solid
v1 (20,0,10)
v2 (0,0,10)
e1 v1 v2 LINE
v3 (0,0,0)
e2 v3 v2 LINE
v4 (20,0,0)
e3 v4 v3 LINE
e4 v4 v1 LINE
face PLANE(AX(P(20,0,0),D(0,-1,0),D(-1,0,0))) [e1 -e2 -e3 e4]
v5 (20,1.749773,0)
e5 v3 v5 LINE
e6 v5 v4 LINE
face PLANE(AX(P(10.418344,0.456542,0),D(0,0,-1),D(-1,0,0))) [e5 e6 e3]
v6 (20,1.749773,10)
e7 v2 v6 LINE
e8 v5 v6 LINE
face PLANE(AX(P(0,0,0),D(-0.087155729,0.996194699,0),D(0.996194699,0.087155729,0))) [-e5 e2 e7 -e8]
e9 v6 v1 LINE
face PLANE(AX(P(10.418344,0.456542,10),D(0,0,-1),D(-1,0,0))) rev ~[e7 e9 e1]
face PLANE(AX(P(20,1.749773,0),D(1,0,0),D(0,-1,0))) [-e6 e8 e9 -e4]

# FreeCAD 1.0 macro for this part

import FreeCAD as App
import Part
import Sketcher
from FreeCAD import Vector
Q = App.Units.Quantity


def add_polygon(sketch, points):
    """Adds a closed chain of lines whose ends are joined by coincident constraints."""
    first, n = sketch.GeometryCount, len(points)
    for a, b in zip(points, points[1:] + points[:1]):
        sketch.addGeometry(Part.LineSegment(App.Vector(*a, 0), App.Vector(*b, 0)), False)
    for i in range(n):
        sketch.addConstraint(Sketcher.Constraint("Coincident", first + i, 2, first + (i + 1) % n, 1))

doc = App.newDocument("Part")
body = doc.addObject("PartDesign::Body", "Body")

# Sketch on XY plane
sketch1 = body.newObject("Sketcher::SketchObject", "Sketch")
sketch1.AttachmentSupport = (doc.getObject("XY_Plane"), [""])
sketch1.MapMode = "FlatFace"
add_polygon(sketch1, [(20, 1.749773), (0, 0), (20, 0)])  # lines 0-2
sketch1.addConstraint(Sketcher.Constraint("Horizontal", 1))
sketch1.addConstraint(Sketcher.Constraint("Vertical", 2))
sketch1.addConstraint(Sketcher.Constraint("Coincident", 0, 2, -1, 1))
sketch1.addConstraint(Sketcher.Constraint("DistanceX", 1, 1, 1, 2, Q("20 mm")))
sketch1.addConstraint(Sketcher.Constraint("Angle", 0, Q("-175.000001 deg")))
pad1 = body.newObject("PartDesign::Pad", "Pad")
pad1.Profile = sketch1
pad1.Length = 10

doc.recompute()
